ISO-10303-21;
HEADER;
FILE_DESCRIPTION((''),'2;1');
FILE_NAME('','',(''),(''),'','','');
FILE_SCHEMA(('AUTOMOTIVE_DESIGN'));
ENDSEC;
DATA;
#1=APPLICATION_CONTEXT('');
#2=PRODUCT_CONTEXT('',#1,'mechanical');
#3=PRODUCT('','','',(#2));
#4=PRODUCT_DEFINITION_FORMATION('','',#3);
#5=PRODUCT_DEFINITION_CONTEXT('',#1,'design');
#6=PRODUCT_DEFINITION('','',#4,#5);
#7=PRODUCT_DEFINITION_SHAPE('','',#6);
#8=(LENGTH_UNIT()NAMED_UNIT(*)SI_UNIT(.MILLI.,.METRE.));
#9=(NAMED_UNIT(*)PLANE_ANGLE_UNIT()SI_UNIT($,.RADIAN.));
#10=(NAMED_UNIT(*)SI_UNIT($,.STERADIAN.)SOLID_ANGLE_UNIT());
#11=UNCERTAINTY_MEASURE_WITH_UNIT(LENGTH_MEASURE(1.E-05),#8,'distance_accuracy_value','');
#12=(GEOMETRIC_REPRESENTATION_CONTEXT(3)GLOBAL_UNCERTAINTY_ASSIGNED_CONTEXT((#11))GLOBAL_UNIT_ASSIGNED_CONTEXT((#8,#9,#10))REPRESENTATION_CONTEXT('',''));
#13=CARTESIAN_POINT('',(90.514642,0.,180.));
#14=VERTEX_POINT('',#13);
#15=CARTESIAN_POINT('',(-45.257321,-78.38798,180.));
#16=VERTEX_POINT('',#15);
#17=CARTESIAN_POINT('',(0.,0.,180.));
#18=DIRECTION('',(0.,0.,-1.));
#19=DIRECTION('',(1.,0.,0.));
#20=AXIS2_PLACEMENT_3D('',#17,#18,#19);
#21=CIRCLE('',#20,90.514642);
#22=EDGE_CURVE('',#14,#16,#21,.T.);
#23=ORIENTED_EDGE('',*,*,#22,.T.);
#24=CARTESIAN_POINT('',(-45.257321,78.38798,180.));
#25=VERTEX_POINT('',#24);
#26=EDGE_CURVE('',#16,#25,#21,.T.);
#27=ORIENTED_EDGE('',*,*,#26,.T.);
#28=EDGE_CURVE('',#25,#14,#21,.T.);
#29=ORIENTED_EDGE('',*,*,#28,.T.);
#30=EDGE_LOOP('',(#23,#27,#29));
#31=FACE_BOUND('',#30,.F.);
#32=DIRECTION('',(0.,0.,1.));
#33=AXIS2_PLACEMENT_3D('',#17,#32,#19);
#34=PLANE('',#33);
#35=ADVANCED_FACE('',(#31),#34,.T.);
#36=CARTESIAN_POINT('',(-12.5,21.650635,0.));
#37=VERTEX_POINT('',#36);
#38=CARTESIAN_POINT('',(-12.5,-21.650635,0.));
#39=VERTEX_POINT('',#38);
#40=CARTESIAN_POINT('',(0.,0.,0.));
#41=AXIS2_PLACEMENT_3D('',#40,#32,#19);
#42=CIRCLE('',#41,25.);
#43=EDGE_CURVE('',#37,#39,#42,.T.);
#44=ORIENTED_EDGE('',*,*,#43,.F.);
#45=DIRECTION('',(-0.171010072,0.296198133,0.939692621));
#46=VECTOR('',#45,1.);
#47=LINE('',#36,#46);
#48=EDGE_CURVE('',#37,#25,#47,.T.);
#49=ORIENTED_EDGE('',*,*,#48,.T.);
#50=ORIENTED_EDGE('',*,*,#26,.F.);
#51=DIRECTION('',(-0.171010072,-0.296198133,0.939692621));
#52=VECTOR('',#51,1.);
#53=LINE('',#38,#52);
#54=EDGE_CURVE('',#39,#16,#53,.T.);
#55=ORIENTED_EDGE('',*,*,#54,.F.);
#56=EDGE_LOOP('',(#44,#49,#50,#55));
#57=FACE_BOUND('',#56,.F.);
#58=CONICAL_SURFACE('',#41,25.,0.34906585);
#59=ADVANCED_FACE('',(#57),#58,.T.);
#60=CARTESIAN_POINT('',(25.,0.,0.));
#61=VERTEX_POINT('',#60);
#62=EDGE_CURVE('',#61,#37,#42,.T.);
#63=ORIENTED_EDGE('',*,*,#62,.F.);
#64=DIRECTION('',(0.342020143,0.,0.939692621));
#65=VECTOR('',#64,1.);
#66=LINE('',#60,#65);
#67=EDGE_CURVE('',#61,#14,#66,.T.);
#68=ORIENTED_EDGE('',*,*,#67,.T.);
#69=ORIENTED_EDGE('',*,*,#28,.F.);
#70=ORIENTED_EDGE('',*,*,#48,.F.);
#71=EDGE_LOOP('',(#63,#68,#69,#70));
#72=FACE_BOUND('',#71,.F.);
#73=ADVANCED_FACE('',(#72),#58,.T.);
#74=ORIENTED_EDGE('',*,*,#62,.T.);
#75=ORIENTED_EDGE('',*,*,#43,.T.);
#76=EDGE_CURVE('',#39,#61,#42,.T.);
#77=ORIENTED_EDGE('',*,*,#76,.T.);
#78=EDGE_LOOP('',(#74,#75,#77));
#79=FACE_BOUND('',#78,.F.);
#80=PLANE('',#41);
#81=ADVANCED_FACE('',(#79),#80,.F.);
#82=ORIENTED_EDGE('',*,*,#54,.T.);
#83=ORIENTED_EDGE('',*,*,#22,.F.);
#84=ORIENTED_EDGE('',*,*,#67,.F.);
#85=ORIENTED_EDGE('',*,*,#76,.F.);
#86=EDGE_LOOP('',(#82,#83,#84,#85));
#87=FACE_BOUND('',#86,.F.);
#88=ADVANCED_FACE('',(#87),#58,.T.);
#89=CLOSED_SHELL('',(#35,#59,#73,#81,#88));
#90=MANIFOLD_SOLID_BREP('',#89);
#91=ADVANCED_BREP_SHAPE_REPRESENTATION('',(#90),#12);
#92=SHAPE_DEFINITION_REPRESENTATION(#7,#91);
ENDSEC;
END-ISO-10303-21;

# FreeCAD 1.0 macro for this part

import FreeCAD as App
import Part
import Sketcher

V = App.Vector
Q = App.Units.Quantity

doc = App.newDocument("Part")
body = doc.addObject("PartDesign::Body", "Body")

# Sketch on XY plane
sketch1 = body.newObject("Sketcher::SketchObject", "Sketch")
sketch1.AttachmentSupport = (doc.getObject("XY_Plane"), [""])
sketch1.MapMode = "FlatFace"
sketch1.addGeometry(Part.Circle(V(0, 0, 0), V(0, 0, 1), 25), False)
sketch1.addConstraint([
    Sketcher.Constraint("Coincident", 0, 3, -1, 1),
    Sketcher.Constraint("Diameter", 0, Q("50 mm")),
])
pad1 = body.newObject("PartDesign::Pad", "Pad")
pad1.Profile = sketch1
pad1.Length = 180
pad1.TaperAngle = 20

doc.recompute()
